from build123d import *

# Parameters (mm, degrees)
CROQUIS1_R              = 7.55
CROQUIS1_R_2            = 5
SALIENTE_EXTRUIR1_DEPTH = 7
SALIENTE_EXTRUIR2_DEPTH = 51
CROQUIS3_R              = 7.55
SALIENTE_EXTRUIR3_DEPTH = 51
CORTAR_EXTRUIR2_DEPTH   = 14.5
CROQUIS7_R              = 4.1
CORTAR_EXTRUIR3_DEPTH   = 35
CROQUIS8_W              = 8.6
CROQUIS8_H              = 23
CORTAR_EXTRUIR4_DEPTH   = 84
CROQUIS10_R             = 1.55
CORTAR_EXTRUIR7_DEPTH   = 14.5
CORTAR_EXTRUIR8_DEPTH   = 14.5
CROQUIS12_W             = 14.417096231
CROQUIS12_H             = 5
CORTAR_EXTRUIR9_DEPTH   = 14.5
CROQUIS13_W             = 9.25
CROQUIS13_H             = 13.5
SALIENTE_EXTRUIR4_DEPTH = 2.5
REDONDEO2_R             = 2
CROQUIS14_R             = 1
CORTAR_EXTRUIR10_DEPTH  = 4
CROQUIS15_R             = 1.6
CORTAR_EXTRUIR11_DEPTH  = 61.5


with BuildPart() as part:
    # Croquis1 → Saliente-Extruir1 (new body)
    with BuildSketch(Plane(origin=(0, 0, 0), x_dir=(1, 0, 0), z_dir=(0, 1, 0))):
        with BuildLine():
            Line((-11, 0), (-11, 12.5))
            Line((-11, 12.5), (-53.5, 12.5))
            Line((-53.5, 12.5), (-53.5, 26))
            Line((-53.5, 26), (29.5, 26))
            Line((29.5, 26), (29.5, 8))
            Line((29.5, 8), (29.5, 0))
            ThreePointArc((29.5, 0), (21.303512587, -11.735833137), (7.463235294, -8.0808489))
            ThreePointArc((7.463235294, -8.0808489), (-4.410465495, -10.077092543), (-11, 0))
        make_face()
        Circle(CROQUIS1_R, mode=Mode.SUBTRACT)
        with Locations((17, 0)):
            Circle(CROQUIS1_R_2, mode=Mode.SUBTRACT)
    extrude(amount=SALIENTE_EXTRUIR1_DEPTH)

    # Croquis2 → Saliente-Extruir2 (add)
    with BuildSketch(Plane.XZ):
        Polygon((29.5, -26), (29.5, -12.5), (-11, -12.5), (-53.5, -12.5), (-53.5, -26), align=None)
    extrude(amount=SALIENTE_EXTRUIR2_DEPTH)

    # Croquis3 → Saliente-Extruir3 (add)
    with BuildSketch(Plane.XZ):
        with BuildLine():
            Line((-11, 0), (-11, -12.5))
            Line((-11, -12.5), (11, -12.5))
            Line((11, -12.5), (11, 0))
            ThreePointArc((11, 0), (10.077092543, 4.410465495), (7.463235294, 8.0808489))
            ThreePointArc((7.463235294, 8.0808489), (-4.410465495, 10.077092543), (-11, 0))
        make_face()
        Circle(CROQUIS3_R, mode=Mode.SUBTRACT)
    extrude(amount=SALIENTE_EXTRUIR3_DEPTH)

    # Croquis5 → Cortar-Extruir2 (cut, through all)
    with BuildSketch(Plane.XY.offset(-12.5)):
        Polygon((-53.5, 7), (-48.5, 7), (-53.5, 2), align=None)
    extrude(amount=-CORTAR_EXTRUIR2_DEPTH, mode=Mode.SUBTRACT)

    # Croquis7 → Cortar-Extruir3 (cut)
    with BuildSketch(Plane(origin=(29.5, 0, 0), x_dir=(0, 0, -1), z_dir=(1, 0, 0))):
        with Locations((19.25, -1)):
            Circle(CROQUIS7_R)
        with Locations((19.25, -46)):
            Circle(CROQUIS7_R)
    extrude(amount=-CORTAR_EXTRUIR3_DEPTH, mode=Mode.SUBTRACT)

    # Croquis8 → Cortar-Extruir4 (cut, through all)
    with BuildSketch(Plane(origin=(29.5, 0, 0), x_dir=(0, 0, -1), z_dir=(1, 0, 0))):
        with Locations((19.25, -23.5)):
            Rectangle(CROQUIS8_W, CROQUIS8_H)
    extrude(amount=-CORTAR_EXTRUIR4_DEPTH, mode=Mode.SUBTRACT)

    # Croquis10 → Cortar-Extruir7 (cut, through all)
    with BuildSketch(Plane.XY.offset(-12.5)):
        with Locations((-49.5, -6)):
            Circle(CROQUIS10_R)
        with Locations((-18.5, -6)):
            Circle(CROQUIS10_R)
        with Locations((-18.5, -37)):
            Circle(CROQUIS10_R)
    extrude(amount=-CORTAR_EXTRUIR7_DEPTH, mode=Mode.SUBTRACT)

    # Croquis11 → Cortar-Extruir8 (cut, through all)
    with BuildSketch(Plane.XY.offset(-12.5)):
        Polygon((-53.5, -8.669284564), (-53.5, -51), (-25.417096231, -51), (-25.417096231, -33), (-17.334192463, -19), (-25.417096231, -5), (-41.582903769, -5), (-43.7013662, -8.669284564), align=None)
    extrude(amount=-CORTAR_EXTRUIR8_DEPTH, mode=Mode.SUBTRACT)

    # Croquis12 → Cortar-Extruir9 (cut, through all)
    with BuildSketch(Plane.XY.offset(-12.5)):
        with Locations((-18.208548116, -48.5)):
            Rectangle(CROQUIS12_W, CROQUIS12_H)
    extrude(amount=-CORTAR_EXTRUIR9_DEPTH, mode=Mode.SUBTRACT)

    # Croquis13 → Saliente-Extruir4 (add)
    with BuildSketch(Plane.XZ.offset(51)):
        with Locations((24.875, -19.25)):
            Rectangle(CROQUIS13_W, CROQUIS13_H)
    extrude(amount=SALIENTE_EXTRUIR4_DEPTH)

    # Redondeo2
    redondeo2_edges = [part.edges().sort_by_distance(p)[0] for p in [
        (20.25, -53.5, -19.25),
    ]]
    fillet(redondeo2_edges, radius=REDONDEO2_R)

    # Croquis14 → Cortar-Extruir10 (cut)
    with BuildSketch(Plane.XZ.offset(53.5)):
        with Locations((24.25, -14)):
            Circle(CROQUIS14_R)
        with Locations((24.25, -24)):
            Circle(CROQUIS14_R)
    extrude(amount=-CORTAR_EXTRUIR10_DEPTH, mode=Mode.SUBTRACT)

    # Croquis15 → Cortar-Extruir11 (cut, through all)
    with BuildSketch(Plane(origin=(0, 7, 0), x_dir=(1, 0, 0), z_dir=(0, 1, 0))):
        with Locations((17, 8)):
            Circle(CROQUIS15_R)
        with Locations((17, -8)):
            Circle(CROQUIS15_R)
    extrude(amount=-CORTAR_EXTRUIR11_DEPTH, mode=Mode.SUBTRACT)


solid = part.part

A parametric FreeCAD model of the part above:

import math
import FreeCAD as App
import Part
import Sketcher

V = App.Vector
Q = App.Units.Quantity


def edges_at(feature, points):
    """Names of the edges that pass closest to the given points."""
    edges = feature.Shape.Edges
    near = lambda p: min(range(len(edges)), key=lambda i: edges[i].distToShape(Part.Vertex(*p))[0])
    return sorted({f"Edge{near(p) + 1}" for p in points})


def add_polygon(sketch, points):
    """Adds a closed chain of lines whose ends are joined by coincident constraints."""
    first, n = sketch.GeometryCount, len(points)
    for a, b in zip(points, points[1:] + points[:1]):
        sketch.addGeometry(Part.LineSegment(App.Vector(*a, 0), App.Vector(*b, 0)), False)
    for i in range(n):
        sketch.addConstraint(Sketcher.Constraint("Coincident", first + i, 2, first + (i + 1) % n, 1))

doc = App.newDocument("Part")
params = doc.addObject("Spreadsheet::Sheet", "Params")
for row, (alias, value) in enumerate([
    ("sketch1_diameter", "10 mm"),
    ("sketch1_radius", "11 mm"),
    ("sketch1_diameter2", "15.1 mm"),
    ("sketch1_radius2", "12.5 mm"),
    ("sketch1_width", "83 mm"),
    ("pad1_length", "7 mm"),
    ("sketch2_width", "83 mm"),
    ("sketch2_height", "13.5 mm"),
    ("pad2_length", "51 mm"),
    ("sketch3_radius", "11 mm"),
    ("sketch3_diameter", "15.1 mm"),
    ("sketch3_height", "12.5 mm"),
    ("pad3_length", "51 mm"),
    ("sketch4_width", "5 mm"),
    ("sketch5_diameter", "8.2 mm"),
    ("pocket2_length", "35 mm"),
    ("sketch6_width", "23 mm"),
    ("sketch6_height", "8.6 mm"),
    ("sketch7_diameter", "3.1 mm"),
    ("sketch8_height", "18 mm"),
    ("sketch9_height", "5 mm"),
    ("sketch10_height", "13.5 mm"),
    ("sketch10_width", "9.25 mm"),
    ("pad4_length", "2.5 mm"),
    ("fillet_radius", "2 mm"),
    ("sketch11_diameter", "2 mm"),
    ("pocket7_length", "4 mm"),
    ("sketch12_diameter", "3.2 mm"),
], start=1):
    params.set(f"A{row}", alias)
    params.set(f"B{row}", "=" + value)
    params.setAlias(f"B{row}", alias)

body = doc.addObject("PartDesign::Body", "Body")

# Sketch on XZ plane
sketch1 = body.newObject("Sketcher::SketchObject", "Sketch")
sketch1.AttachmentSupport = (doc.getObject("XZ_Plane"), [""])
sketch1.MapMode = "FlatFace"
sketch1.addGeometry([
    Part.LineSegment(V(-11, -12.5, 0), V(-11, 0, 0)),  # 0
    Part.ArcOfCircle(Part.Circle(V(0, 0, 0), V(0, 0, 1), 11), math.radians(47.275338), math.radians(180)),  # 1
    Part.ArcOfCircle(Part.Circle(V(17, 0, 0), V(0, 0, 1), 12.5), math.radians(0), math.radians(139.724176)),  # 2
    Part.LineSegment(V(29.5, 0, 0), V(29.5, -26, 0)),  # 3
    Part.LineSegment(V(29.5, -26, 0), V(-53.5, -26, 0)),  # 4
    Part.LineSegment(V(-53.5, -26, 0), V(-53.5, -12.5, 0)),  # 5
    Part.LineSegment(V(-53.5, -12.5, 0), V(-11, -12.5, 0)),  # 6
    Part.Circle(V(0, 0, 0), V(0, 0, 1), 7.55),  # 7
    Part.Circle(V(17, 0, 0), V(0, 0, 1), 5),  # 8
], False)
sketch1.addConstraint([
    Sketcher.Constraint("Tangent", 0, 2, 1, 2),
    Sketcher.Constraint("Coincident", 1, 1, 2, 2),
    Sketcher.Constraint("Tangent", 2, 1, 3, 1),
    Sketcher.Constraint("Coincident", 3, 2, 4, 1),
    Sketcher.Constraint("Coincident", 4, 2, 5, 1),
    Sketcher.Constraint("Coincident", 5, 2, 6, 1),
    Sketcher.Constraint("Coincident", 6, 2, 0, 1),
    Sketcher.Constraint("Vertical", 0),
    Sketcher.Constraint("Vertical", 3),
    Sketcher.Constraint("Horizontal", 4),
    Sketcher.Constraint("Vertical", 5),
    Sketcher.Constraint("Horizontal", 6),
    Sketcher.Constraint("Coincident", 1, 3, -1, 1),
    Sketcher.Constraint("Coincident", 7, 3, -1, 1),
    Sketcher.Constraint("Coincident", 8, 3, 2, 3),
    Sketcher.Constraint("PointOnObject", 2, 3, -1),
    Sketcher.Constraint("Diameter", 8, 10.0),
    Sketcher.Constraint("Radius", 1, 11.0),
    Sketcher.Constraint("Diameter", 7, 15.1),
    Sketcher.Constraint("Radius", 2, 12.5),
    Sketcher.Constraint("DistanceX", 4, 2, 4, 1, 83.0),
    Sketcher.Constraint("DistanceY", 3, 2, 3, 1, 26.0),
    Sketcher.Constraint("DistanceX", 6, 1, 6, 2, 42.5),
    Sketcher.Constraint("DistanceY", 0, 1, 0, 2, 12.5),
])
sketch1.setExpression("Constraints[16]", "Params.sketch1_diameter")
sketch1.setExpression("Constraints[17]", "Params.sketch1_radius")
sketch1.setExpression("Constraints[18]", "Params.sketch1_diameter2")
sketch1.setExpression("Constraints[19]", "Params.sketch1_radius2")
sketch1.setExpression("Constraints[20]", "Params.sketch1_width")
pad1 = body.newObject("PartDesign::Pad", "Pad")
pad1.Profile = sketch1
pad1.setExpression("Length", "Params.pad1_length")
pad1.Reversed = True

# Sketch on XZ plane
sketch2 = body.newObject("Sketcher::SketchObject", "Sketch001")
sketch2.AttachmentSupport = (doc.getObject("XZ_Plane"), [""])
sketch2.MapMode = "FlatFace"
add_polygon(sketch2, [(29.5, -26), (29.5, -12.5), (-53.5, -12.5), (-53.5, -26)])  # lines 0-3
sketch2.addConstraint([
    Sketcher.Constraint("Vertical", 0),
    Sketcher.Constraint("Horizontal", 1),
    Sketcher.Constraint("Vertical", 2),
    Sketcher.Constraint("Horizontal", 3),
    Sketcher.Constraint("DistanceX", 1, 2, 1, 1, 83.0),
    Sketcher.Constraint("DistanceY", 0, 1, 0, 2, 13.5),
    Sketcher.Constraint("DistanceY", 2, 2, -1, 1, 26.0),
    Sketcher.Constraint("DistanceX", -1, 1, 0, 2, 29.5),
])
sketch2.setExpression("Constraints[8]", "Params.sketch2_width")
sketch2.setExpression("Constraints[9]", "Params.sketch2_height")
pad2 = body.newObject("PartDesign::Pad", "Pad001")
pad2.Profile = sketch2
pad2.setExpression("Length", "Params.pad2_length")

# Sketch on XZ plane
sketch3 = body.newObject("Sketcher::SketchObject", "Sketch002")
sketch3.AttachmentSupport = (doc.getObject("XZ_Plane"), [""])
sketch3.MapMode = "FlatFace"
sketch3.addGeometry([
    Part.LineSegment(V(-11, 0, 0), V(-11, -12.5, 0)),  # 0
    Part.LineSegment(V(-11, -12.5, 0), V(11, -12.5, 0)),  # 1
    Part.LineSegment(V(11, -12.5, 0), V(11, 0, 0)),  # 2
    Part.ArcOfCircle(Part.Circle(V(0, 0, 0), V(0, 0, 1), 11), math.radians(0), math.radians(47.275338)),  # 3
    Part.ArcOfCircle(Part.Circle(V(0, 0, 0), V(0, 0, 1), 11), math.radians(47.275338), math.radians(180)),  # 4
    Part.Circle(V(0, 0, 0), V(0, 0, 1), 7.55),  # 5
], False)
sketch3.addConstraint([
    Sketcher.Constraint("Coincident", 0, 2, 1, 1),
    Sketcher.Constraint("Coincident", 1, 2, 2, 1),
    Sketcher.Constraint("Tangent", 2, 2, 3, 1),
    Sketcher.Constraint("Tangent", 3, 2, 4, 1),
    Sketcher.Constraint("Tangent", 4, 2, 0, 1),
    Sketcher.Constraint("Vertical", 0),
    Sketcher.Constraint("Horizontal", 1),
    Sketcher.Constraint("Vertical", 2),
    Sketcher.Constraint("Coincident", 3, 3, -1, 1),
    Sketcher.Constraint("Coincident", 5, 3, -1, 1),
    Sketcher.Constraint("Equal", 3, 4),
    Sketcher.Constraint("Radius", 3, 11.0),
    Sketcher.Constraint("Diameter", 5, 15.1),
    Sketcher.Constraint("DistanceY", 0, 2, 0, 1, 12.5),
    Sketcher.Constraint("DistanceY", -1, 1, 3, 2, 8.080849),
])
sketch3.setExpression("Constraints[11]", "Params.sketch3_radius")
sketch3.setExpression("Constraints[12]", "Params.sketch3_diameter")
sketch3.setExpression("Constraints[13]", "Params.sketch3_height")
pad3 = body.newObject("PartDesign::Pad", "Pad002")
pad3.Profile = sketch3
pad3.setExpression("Length", "Params.pad3_length")

# Sketch on XY plane
sketch4 = body.newObject("Sketcher::SketchObject", "Sketch003")
sketch4.AttachmentSupport = (doc.getObject("XY_Plane"), [""])
sketch4.MapMode = "FlatFace"
sketch4.AttachmentOffset = App.Placement(V(0, 0, -12.5), App.Rotation())
add_polygon(sketch4, [(-48.5, 7), (-53.5, 7), (-53.5, 2)])  # lines 0-2
sketch4.addConstraint([
    Sketcher.Constraint("Horizontal", 0),
    Sketcher.Constraint("Vertical", 1),
    Sketcher.Constraint("Equal", 0, 1),
    Sketcher.Constraint("DistanceX", 0, 2, 0, 1, 5.0),
    Sketcher.Constraint("DistanceY", -1, 1, 0, 2, 7.0),
    Sketcher.Constraint("DistanceX", 0, 2, -1, 1, 53.5),
])
sketch4.setExpression("Constraints[6]", "Params.sketch4_width")
pocket1 = body.newObject("PartDesign::Pocket", "Pocket")
pocket1.Profile = sketch4
pocket1.Type = "ThroughAll"

# Sketch on YZ plane
sketch5 = body.newObject("Sketcher::SketchObject", "Sketch004")
sketch5.AttachmentSupport = (doc.getObject("YZ_Plane"), [""])
sketch5.MapMode = "FlatFace"
sketch5.AttachmentOffset = App.Placement(V(0, 0, 29.5), App.Rotation())
sketch5.addGeometry([
    Part.Circle(V(-1, -19.25, 0), V(0, 0, 1), 4.1),
    Part.Circle(V(-46, -19.25, 0), V(0, 0, 1), 4.1),
], False)
sketch5.addConstraint([
    Sketcher.Constraint("Equal", 0, 1),
    Sketcher.Constraint("Horizontal", 0, 3, 1, 3),
    Sketcher.Constraint("Diameter", 0, 8.2),
    Sketcher.Constraint("DistanceX", 0, 3, -1, 1, 1.0),
    Sketcher.Constraint("DistanceX", 1, 3, -1, 1, 46.0),
    Sketcher.Constraint("DistanceY", 0, 3, -1, 1, 19.25),
])
sketch5.setExpression("Constraints[2]", "Params.sketch5_diameter")
pocket2 = body.newObject("PartDesign::Pocket", "Pocket001")
pocket2.Profile = sketch5
pocket2.setExpression("Length", "Params.pocket2_length")

# Sketch on YZ plane
sketch6 = body.newObject("Sketcher::SketchObject", "Sketch005")
sketch6.AttachmentSupport = (doc.getObject("YZ_Plane"), [""])
sketch6.MapMode = "FlatFace"
sketch6.AttachmentOffset = App.Placement(V(0, 0, 29.5), App.Rotation())
add_polygon(sketch6, [(-12, -14.95), (-35, -14.95), (-35, -23.55), (-12, -23.55)])  # lines 0-3
sketch6.addConstraint([
    Sketcher.Constraint("Horizontal", 0),
    Sketcher.Constraint("Vertical", 1),
    Sketcher.Constraint("Horizontal", 2),
    Sketcher.Constraint("Vertical", 3),
    Sketcher.Constraint("DistanceX", 0, 2, 0, 1, 23.0),
    Sketcher.Constraint("DistanceY", 1, 2, 1, 1, 8.6),
    Sketcher.Constraint("DistanceX", 0, 2, -1, 1, 35.0),
    Sketcher.Constraint("DistanceY", 0, 2, -1, 1, 14.95),
])
sketch6.setExpression("Constraints[8]", "Params.sketch6_width")
sketch6.setExpression("Constraints[9]", "Params.sketch6_height")
pocket3 = body.newObject("PartDesign::Pocket", "Pocket002")
pocket3.Profile = sketch6
pocket3.Type = "ThroughAll"

# Sketch on XY plane
sketch7 = body.newObject("Sketcher::SketchObject", "Sketch006")
sketch7.AttachmentSupport = (doc.getObject("XY_Plane"), [""])
sketch7.MapMode = "FlatFace"
sketch7.AttachmentOffset = App.Placement(V(0, 0, -12.5), App.Rotation())
sketch7.addGeometry([
    Part.Circle(V(-49.5, -6, 0), V(0, 0, 1), 1.55),
    Part.Circle(V(-18.5, -6, 0), V(0, 0, 1), 1.55),
    Part.Circle(V(-18.5, -37, 0), V(0, 0, 1), 1.55),
], False)
sketch7.addConstraint([
    Sketcher.Constraint("Equal", 0, 1),
    Sketcher.Constraint("Equal", 1, 2),
    Sketcher.Constraint("Horizontal", 0, 3, 1, 3),
    Sketcher.Constraint("Vertical", 1, 3, 2, 3),
    Sketcher.Constraint("Diameter", 0, 3.1),
    Sketcher.Constraint("DistanceY", 0, 3, -1, 1, 6.0),
    Sketcher.Constraint("DistanceY", 2, 3, -1, 1, 37.0),
    Sketcher.Constraint("DistanceX", 0, 3, 1, 3, 31.0),
    Sketcher.Constraint("DistanceX", 0, 3, -1, 1, 49.5),
])
sketch7.setExpression("Constraints[4]", "Params.sketch7_diameter")
pocket4 = body.newObject("PartDesign::Pocket", "Pocket003")
pocket4.Profile = sketch7
pocket4.Type = "ThroughAll"

# Sketch on XY plane
sketch8 = body.newObject("Sketcher::SketchObject", "Sketch007")
sketch8.AttachmentSupport = (doc.getObject("XY_Plane"), [""])
sketch8.MapMode = "FlatFace"
sketch8.AttachmentOffset = App.Placement(V(0, 0, -12.5), App.Rotation())
add_polygon(sketch8, [(-53.5, -8.669285), (-53.5, -51), (-25.417096, -51), (-25.417096, -33), (-17.334192, -19), (-25.417096, -5), (-41.582904, -5), (-43.701366, -8.669285)])  # lines 0-7
sketch8.addConstraint([
    Sketcher.Constraint("Vertical", 0),
    Sketcher.Constraint("Horizontal", 1),
    Sketcher.Constraint("Vertical", 2),
    Sketcher.Constraint("Horizontal", 5),
    Sketcher.Constraint("Horizontal", 7),
    Sketcher.Constraint("Parallel", 3, 6),
    Sketcher.Constraint("Vertical", 2, 2, 4, 2),
    Sketcher.Constraint("Equal", 3, 4),
    Sketcher.Constraint("DistanceY", 2, 1, 2, 2, 18.0),
    Sketcher.Constraint("Angle", 3, Q("60 deg")),
    Sketcher.Constraint("DistanceY", 0, 2, -1, 1, 51.0),
    Sketcher.Constraint("DistanceY", 3, 2, -1, 1, 19.0),
    Sketcher.Constraint("DistanceX", 0, 2, -1, 1, 53.5),
    Sketcher.Constraint("DistanceX", 1, 1, 1, 2, 28.082904),
    Sketcher.Constraint("DistanceX", 5, 2, 5, 1, 16.165808),
    Sketcher.Constraint("DistanceX", 7, 2, 7, 1, 9.798634),
])
sketch8.setExpression("Constraints[16]", "Params.sketch8_height")
pocket5 = body.newObject("PartDesign::Pocket", "Pocket004")
pocket5.Profile = sketch8
pocket5.Type = "ThroughAll"

# Sketch on XY plane
sketch9 = body.newObject("Sketcher::SketchObject", "Sketch008")
sketch9.AttachmentSupport = (doc.getObject("XY_Plane"), [""])
sketch9.MapMode = "FlatFace"
sketch9.AttachmentOffset = App.Placement(V(0, 0, -12.5), App.Rotation())
add_polygon(sketch9, [(-25.417096, -46), (-25.417096, -51), (-11, -51), (-11, -46)])  # lines 0-3
sketch9.addConstraint([
    Sketcher.Constraint("Vertical", 0),
    Sketcher.Constraint("Horizontal", 1),
    Sketcher.Constraint("Vertical", 2),
    Sketcher.Constraint("Horizontal", 3),
    Sketcher.Constraint("DistanceY", 0, 2, 0, 1, 5.0),
    Sketcher.Constraint("DistanceY", 0, 2, -1, 1, 51.0),
    Sketcher.Constraint("DistanceX", 1, 2, -1, 1, 11.0),
    Sketcher.Constraint("DistanceX", 1, 1, 1, 2, 14.417096),
])
sketch9.setExpression("Constraints[8]", "Params.sketch9_height")
pocket6 = body.newObject("PartDesign::Pocket", "Pocket005")
pocket6.Profile = sketch9
pocket6.Type = "ThroughAll"

# Sketch on XZ plane
sketch10 = body.newObject("Sketcher::SketchObject", "Sketch009")
sketch10.AttachmentSupport = (doc.getObject("XZ_Plane"), [""])
sketch10.MapMode = "FlatFace"
sketch10.AttachmentOffset = App.Placement(V(0, 0, 51), App.Rotation())
add_polygon(sketch10, [(20.25, -12.5), (20.25, -26), (29.5, -26), (29.5, -12.5)])  # lines 0-3
sketch10.addConstraint([
    Sketcher.Constraint("Vertical", 0),
    Sketcher.Constraint("Horizontal", 1),
    Sketcher.Constraint("Vertical", 2),
    Sketcher.Constraint("Horizontal", 3),
    Sketcher.Constraint("DistanceY", 0, 2, 0, 1, 13.5),
    Sketcher.Constraint("DistanceY", 0, 2, -1, 1, 26.0),
    Sketcher.Constraint("DistanceX", 1, 1, 1, 2, 9.25),
    Sketcher.Constraint("DistanceX", -1, 1, 1, 2, 29.5),
])
sketch10.setExpression("Constraints[8]", "Params.sketch10_height")
sketch10.setExpression("Constraints[10]", "Params.sketch10_width")
pad4 = body.newObject("PartDesign::Pad", "Pad003")
pad4.Profile = sketch10
pad4.setExpression("Length", "Params.pad4_length")
doc.recompute()

fillet = body.newObject("PartDesign::Fillet", "Fillet")
fillet.Base = (pad4, edges_at(pad4, [(20.25, -53.5, -19.25)]))
fillet.setExpression("Radius", "Params.fillet_radius")

# Sketch on XZ plane
sketch11 = body.newObject("Sketcher::SketchObject", "Sketch010")
sketch11.AttachmentSupport = (doc.getObject("XZ_Plane"), [""])
sketch11.MapMode = "FlatFace"
sketch11.AttachmentOffset = App.Placement(V(0, 0, 53.5), App.Rotation())
sketch11.addGeometry([
    Part.Circle(V(24.25, -14, 0), V(0, 0, 1), 1),
    Part.Circle(V(24.25, -24, 0), V(0, 0, 1), 1),
], False)
sketch11.addConstraint([
    Sketcher.Constraint("Equal", 0, 1),
    Sketcher.Constraint("Vertical", 0, 3, 1, 3),
    Sketcher.Constraint("Diameter", 0, 2.0),
    Sketcher.Constraint("DistanceY", 0, 3, -1, 1, 14.0),
    Sketcher.Constraint("DistanceY", 1, 3, -1, 1, 24.0),
    Sketcher.Constraint("DistanceX", -1, 1, 0, 3, 24.25),
])
sketch11.setExpression("Constraints[2]", "Params.sketch11_diameter")
pocket7 = body.newObject("PartDesign::Pocket", "Pocket006")
pocket7.Profile = sketch11
pocket7.setExpression("Length", "Params.pocket7_length")

# Sketch on XZ plane
sketch12 = body.newObject("Sketcher::SketchObject", "Sketch011")
sketch12.AttachmentSupport = (doc.getObject("XZ_Plane"), [""])
sketch12.MapMode = "FlatFace"
sketch12.AttachmentOffset = App.Placement(V(0, 0, -7), App.Rotation())
sketch12.addGeometry([
    Part.Circle(V(17, -8, 0), V(0, 0, 1), 1.6),
    Part.Circle(V(17, 8, 0), V(0, 0, 1), 1.6),
], False)
sketch12.addConstraint([
    Sketcher.Constraint("Equal", 0, 1),
    Sketcher.Constraint("Symmetric", 0, 3, 1, 3, -1),
    Sketcher.Constraint("Diameter", 0, 3.2),
    Sketcher.Constraint("DistanceX", -1, 1, 0, 3, 17.0),
    Sketcher.Constraint("DistanceY", 0, 3, -1, 1, 8.0),
])
sketch12.setExpression("Constraints[2]", "Params.sketch12_diameter")
pocket8 = body.newObject("PartDesign::Pocket", "Pocket007")
pocket8.Profile = sketch12
pocket8.Type = "ThroughAll"
pocket8.Reversed = True

doc.recompute()
